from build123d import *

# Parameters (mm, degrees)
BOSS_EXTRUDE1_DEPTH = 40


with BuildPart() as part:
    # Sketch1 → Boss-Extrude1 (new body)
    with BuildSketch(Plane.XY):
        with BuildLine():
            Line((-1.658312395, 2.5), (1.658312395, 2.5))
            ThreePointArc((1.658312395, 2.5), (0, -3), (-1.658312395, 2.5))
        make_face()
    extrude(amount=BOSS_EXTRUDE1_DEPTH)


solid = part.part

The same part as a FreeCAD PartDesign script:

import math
import FreeCAD as App
import Part
import Sketcher
Q = App.Units.Quantity

doc = App.newDocument("Part")
params = doc.addObject("Spreadsheet::Sheet", "Params")
for row, (alias, value) in enumerate([
    ("sketch1_radius", "3 mm"),
    ("pad1_length", "40 mm"),
], start=1):
    params.set(f"A{row}", alias)
    params.set(f"B{row}", "=" + value)
    params.setAlias(f"B{row}", alias)

body = doc.addObject("PartDesign::Body", "Body")

# Sketch on XY plane
sketch1 = body.newObject("Sketcher::SketchObject", "Sketch")
sketch1.AttachmentSupport = (doc.getObject("XY_Plane"), [""])
sketch1.MapMode = "FlatFace"
sketch1.addGeometry(Part.LineSegment(App.Vector(1.7, 2.5, 0), App.Vector(-1.7, 2.5, 0)), False)
sketch1.addGeometry(Part.ArcOfCircle(Part.Circle(App.Vector(0, 0, 0), App.Vector(0, 0, 1), 3), math.radians(124), math.radians(416)), False)
sketch1.addConstraint(Sketcher.Constraint("Coincident", 0, 1, 1, 2))
sketch1.addConstraint(Sketcher.Constraint("Coincident", 1, 1, 0, 2))
sketch1.addConstraint(Sketcher.Constraint("Horizontal", 0))
sketch1.addConstraint(Sketcher.Constraint("Coincident", 1, 3, -1, 1))
sketch1.addConstraint(Sketcher.Constraint("Radius", 1, Q("3 mm")))
sketch1.addConstraint(Sketcher.Constraint("DistanceY", -1, 1, 0, 1, Q("2.5 mm")))
sketch1.setExpression("Constraints[4]", "Params.sketch1_radius")
pad1 = body.newObject("PartDesign::Pad", "Pad")
pad1.Profile = sketch1
pad1.setExpression("Length", "Params.pad1_length")

doc.recompute()
